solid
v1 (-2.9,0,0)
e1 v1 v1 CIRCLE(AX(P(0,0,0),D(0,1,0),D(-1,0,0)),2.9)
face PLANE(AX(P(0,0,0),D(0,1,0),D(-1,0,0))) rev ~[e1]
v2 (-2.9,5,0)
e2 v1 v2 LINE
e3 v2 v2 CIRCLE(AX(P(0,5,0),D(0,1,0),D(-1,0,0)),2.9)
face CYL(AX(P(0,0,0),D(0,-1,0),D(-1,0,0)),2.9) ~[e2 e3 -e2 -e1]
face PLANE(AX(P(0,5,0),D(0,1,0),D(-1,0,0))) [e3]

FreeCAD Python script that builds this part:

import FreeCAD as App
import Part
import Sketcher
Q = App.Units.Quantity

doc = App.newDocument("Part")
body = doc.addObject("PartDesign::Body", "Body")

# Sketch on XZ plane
sketch1 = body.newObject("Sketcher::SketchObject", "Sketch")
sketch1.AttachmentSupport = (doc.getObject("XZ_Plane"), [""])
sketch1.MapMode = "FlatFace"
sketch1.addGeometry(Part.Circle(App.Vector(0, 0, 0), App.Vector(0, 0, 1), 2.9), False)
sketch1.addConstraint(Sketcher.Constraint("Coincident", 0, 3, -1, 1))
sketch1.addConstraint(Sketcher.Constraint("Diameter", 0, Q("5.8 mm")))
pad1 = body.newObject("PartDesign::Pad", "Pad")
pad1.Profile = sketch1
pad1.Length = 5
pad1.Reversed = True

doc.recompute()
